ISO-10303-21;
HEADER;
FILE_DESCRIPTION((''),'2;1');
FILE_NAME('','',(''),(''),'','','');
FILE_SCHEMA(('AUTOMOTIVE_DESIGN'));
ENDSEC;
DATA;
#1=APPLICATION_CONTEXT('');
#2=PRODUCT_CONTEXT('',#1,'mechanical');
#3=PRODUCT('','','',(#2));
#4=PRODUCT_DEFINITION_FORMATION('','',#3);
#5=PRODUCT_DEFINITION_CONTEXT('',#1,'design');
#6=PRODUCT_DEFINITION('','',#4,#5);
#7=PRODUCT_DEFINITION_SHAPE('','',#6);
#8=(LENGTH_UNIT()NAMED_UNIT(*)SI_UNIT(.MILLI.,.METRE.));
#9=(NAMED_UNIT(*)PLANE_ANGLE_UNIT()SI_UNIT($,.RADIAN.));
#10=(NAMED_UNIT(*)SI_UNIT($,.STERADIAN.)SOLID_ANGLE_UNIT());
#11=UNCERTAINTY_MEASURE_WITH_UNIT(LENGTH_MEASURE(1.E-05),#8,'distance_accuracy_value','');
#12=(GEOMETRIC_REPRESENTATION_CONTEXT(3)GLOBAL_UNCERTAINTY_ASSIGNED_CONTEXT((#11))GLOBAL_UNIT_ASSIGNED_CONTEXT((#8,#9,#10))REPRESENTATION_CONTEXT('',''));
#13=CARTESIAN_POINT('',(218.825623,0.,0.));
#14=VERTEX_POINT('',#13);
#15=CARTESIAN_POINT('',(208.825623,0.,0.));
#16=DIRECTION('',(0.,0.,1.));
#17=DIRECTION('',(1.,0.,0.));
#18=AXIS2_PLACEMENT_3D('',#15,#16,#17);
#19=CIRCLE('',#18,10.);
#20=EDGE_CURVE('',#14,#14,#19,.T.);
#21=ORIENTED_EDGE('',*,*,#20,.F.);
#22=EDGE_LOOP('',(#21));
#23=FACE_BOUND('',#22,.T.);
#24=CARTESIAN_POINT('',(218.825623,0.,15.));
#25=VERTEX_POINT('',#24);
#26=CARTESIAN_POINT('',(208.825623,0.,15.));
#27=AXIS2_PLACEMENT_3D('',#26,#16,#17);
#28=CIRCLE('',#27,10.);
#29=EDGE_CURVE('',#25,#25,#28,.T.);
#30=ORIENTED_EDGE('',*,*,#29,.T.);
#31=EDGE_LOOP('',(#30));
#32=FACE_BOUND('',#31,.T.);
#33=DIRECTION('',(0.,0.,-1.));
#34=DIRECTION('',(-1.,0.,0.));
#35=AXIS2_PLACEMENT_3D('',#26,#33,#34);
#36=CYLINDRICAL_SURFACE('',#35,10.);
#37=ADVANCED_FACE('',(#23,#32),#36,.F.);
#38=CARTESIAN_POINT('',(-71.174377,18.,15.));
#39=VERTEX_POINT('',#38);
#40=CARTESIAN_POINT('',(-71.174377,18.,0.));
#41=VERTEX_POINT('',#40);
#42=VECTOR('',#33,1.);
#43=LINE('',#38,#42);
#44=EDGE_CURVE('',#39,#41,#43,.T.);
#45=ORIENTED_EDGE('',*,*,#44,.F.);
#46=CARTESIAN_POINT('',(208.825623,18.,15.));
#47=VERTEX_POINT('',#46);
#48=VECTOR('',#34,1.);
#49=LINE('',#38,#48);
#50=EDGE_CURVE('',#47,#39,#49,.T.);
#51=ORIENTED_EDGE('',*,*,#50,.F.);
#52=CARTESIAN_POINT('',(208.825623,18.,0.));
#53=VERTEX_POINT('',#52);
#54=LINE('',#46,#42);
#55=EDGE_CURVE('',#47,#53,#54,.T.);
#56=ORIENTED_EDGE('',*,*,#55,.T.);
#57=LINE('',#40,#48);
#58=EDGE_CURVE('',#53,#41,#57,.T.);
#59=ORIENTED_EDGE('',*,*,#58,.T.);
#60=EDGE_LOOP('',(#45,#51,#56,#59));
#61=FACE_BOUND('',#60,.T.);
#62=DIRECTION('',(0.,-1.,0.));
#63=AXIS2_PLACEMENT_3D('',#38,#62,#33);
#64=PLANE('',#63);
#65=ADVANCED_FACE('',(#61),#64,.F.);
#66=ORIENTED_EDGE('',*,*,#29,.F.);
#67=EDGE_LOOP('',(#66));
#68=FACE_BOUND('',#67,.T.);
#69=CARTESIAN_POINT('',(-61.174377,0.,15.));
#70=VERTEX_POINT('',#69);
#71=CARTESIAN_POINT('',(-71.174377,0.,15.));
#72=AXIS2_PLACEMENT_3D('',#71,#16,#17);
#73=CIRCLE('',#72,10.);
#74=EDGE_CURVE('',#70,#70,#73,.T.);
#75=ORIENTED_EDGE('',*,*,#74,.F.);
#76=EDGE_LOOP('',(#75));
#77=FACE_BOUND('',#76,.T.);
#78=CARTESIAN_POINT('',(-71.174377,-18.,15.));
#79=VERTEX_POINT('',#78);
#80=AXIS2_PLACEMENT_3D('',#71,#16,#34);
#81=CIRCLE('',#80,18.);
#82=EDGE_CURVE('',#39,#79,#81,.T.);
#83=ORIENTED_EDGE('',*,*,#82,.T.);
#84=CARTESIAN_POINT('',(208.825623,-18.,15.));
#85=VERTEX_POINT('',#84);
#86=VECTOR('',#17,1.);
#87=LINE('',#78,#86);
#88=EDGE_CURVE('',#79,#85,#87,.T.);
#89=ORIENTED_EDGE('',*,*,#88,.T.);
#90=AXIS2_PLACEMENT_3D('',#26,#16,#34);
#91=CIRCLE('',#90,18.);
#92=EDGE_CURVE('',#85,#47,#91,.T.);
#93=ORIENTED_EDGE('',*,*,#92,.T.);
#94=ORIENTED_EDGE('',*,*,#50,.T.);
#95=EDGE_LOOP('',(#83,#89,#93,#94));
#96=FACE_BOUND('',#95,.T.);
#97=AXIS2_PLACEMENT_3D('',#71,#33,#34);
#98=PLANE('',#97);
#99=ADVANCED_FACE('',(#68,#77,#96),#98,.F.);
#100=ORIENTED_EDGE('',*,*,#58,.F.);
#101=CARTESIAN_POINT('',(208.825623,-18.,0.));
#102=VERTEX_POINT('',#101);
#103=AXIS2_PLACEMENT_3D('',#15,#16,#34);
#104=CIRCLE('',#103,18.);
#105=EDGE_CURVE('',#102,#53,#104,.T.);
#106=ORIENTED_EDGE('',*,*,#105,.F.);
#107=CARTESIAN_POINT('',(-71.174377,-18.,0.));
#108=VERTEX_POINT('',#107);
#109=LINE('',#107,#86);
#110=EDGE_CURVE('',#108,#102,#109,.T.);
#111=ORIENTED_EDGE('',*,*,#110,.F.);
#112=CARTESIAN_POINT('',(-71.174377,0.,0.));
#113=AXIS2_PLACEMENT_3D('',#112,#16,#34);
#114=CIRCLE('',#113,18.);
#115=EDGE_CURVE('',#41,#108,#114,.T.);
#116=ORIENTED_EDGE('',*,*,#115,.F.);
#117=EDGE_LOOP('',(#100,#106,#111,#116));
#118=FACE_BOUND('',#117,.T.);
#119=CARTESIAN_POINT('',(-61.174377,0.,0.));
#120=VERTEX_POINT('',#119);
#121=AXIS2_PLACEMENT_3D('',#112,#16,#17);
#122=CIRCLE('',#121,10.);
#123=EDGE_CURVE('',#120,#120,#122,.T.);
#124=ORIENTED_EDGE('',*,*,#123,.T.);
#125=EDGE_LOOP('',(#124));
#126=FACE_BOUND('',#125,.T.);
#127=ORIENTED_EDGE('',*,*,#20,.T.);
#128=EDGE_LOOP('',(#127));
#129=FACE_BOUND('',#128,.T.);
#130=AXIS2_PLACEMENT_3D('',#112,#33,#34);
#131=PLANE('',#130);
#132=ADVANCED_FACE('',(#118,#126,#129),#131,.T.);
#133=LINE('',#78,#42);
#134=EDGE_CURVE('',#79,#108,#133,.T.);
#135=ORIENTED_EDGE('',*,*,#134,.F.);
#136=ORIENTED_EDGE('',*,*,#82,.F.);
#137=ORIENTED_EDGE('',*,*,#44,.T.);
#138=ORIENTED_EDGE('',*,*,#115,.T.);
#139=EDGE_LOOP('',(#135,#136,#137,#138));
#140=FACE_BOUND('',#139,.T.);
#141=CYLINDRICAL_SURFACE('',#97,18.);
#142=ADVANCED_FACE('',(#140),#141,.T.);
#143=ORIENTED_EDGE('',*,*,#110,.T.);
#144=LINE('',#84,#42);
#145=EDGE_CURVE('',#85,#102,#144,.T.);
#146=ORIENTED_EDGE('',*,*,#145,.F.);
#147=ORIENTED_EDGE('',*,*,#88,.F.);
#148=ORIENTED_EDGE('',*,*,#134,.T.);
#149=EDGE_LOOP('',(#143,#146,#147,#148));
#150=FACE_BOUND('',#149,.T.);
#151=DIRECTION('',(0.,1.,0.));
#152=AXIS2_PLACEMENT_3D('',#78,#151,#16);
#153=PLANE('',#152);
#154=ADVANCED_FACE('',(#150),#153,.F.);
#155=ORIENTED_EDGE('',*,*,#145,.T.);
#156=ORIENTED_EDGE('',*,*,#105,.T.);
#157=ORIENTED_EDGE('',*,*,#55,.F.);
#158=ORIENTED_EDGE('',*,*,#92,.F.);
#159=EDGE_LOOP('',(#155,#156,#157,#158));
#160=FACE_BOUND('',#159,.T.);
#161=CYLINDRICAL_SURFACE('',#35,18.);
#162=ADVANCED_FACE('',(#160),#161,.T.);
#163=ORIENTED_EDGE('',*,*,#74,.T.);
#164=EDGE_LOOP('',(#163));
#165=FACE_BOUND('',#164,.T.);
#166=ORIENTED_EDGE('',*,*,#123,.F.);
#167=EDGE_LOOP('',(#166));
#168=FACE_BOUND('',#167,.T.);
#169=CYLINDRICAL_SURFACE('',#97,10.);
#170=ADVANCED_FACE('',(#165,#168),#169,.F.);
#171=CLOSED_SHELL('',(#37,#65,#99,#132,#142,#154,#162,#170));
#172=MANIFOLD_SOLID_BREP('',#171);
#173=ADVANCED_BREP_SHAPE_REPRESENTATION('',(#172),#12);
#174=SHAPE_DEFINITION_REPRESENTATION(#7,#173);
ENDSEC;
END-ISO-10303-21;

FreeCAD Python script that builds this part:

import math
import FreeCAD as App
import Part
import Sketcher

V = App.Vector
Q = App.Units.Quantity

doc = App.newDocument("Part")
params = doc.addObject("Spreadsheet::Sheet", "Params")
for row, (alias, value) in enumerate([
    ("sketch1_diameter", "20 mm"),
    ("sketch1_radius", "18 mm"),
    ("sketch1_width", "280 mm"),
    ("pad1_length", "15 mm"),
], start=1):
    params.set(f"A{row}", alias)
    params.set(f"B{row}", "=" + value)
    params.setAlias(f"B{row}", alias)

body = doc.addObject("PartDesign::Body", "Body")

# Sketch on XY plane
sketch1 = body.newObject("Sketcher::SketchObject", "Sketch")
sketch1.AttachmentSupport = (doc.getObject("XY_Plane"), [""])
sketch1.MapMode = "FlatFace"
sketch1.addGeometry(Part.LineSegment(V(208.825623, 18, 0), V(-71.174377, 18, 0)), False)
sketch1.addGeometry(Part.ArcOfCircle(Part.Circle(V(-71.174377, 0, 0), V(0, 0, 1), 18), math.radians(90), math.radians(270)), False)
sketch1.addGeometry(Part.LineSegment(V(-71.174377, -18, 0), V(208.825623, -18, 0)), False)
sketch1.addGeometry(Part.ArcOfCircle(Part.Circle(V(208.825623, 0, 0), V(0, 0, 1), 18), math.radians(-90), math.radians(90)), False)
sketch1.addGeometry(Part.Circle(V(208.825623, 0, 0), V(0, 0, 1), 10), False)
sketch1.addGeometry(Part.Circle(V(-71.174377, 0, 0), V(0, 0, 1), 10), False)
sketch1.addConstraint(Sketcher.Constraint("Tangent", 0, 2, 1, 1))
sketch1.addConstraint(Sketcher.Constraint("Tangent", 1, 2, 2, 1))
sketch1.addConstraint(Sketcher.Constraint("Tangent", 2, 2, 3, 1))
sketch1.addConstraint(Sketcher.Constraint("Tangent", 3, 2, 0, 1))
sketch1.addConstraint(Sketcher.Constraint("Horizontal", 0))
sketch1.addConstraint(Sketcher.Constraint("Horizontal", 2))
sketch1.addConstraint(Sketcher.Constraint("Coincident", 4, 3, 3, 3))
sketch1.addConstraint(Sketcher.Constraint("Coincident", 5, 3, 1, 3))
sketch1.addConstraint(Sketcher.Constraint("Equal", 4, 5))
sketch1.addConstraint(Sketcher.Constraint("PointOnObject", 1, 3, -1))
sketch1.addConstraint(Sketcher.Constraint("Diameter", 4, Q("20 mm")))
sketch1.addConstraint(Sketcher.Constraint("Radius", 1, Q("18 mm")))
sketch1.addConstraint(Sketcher.Constraint("DistanceX", 0, 2, 0, 1, Q("280 mm")))
sketch1.addConstraint(Sketcher.Constraint("DistanceX", 1, 3, -1, 1, Q("71.174377 mm")))
sketch1.setExpression("Constraints[10]", "Params.sketch1_diameter")
sketch1.setExpression("Constraints[11]", "Params.sketch1_radius")
sketch1.setExpression("Constraints[12]", "Params.sketch1_width")
pad1 = body.newObject("PartDesign::Pad", "Pad")
pad1.Profile = sketch1
pad1.setExpression("Length", "Params.pad1_length")

doc.recompute()
